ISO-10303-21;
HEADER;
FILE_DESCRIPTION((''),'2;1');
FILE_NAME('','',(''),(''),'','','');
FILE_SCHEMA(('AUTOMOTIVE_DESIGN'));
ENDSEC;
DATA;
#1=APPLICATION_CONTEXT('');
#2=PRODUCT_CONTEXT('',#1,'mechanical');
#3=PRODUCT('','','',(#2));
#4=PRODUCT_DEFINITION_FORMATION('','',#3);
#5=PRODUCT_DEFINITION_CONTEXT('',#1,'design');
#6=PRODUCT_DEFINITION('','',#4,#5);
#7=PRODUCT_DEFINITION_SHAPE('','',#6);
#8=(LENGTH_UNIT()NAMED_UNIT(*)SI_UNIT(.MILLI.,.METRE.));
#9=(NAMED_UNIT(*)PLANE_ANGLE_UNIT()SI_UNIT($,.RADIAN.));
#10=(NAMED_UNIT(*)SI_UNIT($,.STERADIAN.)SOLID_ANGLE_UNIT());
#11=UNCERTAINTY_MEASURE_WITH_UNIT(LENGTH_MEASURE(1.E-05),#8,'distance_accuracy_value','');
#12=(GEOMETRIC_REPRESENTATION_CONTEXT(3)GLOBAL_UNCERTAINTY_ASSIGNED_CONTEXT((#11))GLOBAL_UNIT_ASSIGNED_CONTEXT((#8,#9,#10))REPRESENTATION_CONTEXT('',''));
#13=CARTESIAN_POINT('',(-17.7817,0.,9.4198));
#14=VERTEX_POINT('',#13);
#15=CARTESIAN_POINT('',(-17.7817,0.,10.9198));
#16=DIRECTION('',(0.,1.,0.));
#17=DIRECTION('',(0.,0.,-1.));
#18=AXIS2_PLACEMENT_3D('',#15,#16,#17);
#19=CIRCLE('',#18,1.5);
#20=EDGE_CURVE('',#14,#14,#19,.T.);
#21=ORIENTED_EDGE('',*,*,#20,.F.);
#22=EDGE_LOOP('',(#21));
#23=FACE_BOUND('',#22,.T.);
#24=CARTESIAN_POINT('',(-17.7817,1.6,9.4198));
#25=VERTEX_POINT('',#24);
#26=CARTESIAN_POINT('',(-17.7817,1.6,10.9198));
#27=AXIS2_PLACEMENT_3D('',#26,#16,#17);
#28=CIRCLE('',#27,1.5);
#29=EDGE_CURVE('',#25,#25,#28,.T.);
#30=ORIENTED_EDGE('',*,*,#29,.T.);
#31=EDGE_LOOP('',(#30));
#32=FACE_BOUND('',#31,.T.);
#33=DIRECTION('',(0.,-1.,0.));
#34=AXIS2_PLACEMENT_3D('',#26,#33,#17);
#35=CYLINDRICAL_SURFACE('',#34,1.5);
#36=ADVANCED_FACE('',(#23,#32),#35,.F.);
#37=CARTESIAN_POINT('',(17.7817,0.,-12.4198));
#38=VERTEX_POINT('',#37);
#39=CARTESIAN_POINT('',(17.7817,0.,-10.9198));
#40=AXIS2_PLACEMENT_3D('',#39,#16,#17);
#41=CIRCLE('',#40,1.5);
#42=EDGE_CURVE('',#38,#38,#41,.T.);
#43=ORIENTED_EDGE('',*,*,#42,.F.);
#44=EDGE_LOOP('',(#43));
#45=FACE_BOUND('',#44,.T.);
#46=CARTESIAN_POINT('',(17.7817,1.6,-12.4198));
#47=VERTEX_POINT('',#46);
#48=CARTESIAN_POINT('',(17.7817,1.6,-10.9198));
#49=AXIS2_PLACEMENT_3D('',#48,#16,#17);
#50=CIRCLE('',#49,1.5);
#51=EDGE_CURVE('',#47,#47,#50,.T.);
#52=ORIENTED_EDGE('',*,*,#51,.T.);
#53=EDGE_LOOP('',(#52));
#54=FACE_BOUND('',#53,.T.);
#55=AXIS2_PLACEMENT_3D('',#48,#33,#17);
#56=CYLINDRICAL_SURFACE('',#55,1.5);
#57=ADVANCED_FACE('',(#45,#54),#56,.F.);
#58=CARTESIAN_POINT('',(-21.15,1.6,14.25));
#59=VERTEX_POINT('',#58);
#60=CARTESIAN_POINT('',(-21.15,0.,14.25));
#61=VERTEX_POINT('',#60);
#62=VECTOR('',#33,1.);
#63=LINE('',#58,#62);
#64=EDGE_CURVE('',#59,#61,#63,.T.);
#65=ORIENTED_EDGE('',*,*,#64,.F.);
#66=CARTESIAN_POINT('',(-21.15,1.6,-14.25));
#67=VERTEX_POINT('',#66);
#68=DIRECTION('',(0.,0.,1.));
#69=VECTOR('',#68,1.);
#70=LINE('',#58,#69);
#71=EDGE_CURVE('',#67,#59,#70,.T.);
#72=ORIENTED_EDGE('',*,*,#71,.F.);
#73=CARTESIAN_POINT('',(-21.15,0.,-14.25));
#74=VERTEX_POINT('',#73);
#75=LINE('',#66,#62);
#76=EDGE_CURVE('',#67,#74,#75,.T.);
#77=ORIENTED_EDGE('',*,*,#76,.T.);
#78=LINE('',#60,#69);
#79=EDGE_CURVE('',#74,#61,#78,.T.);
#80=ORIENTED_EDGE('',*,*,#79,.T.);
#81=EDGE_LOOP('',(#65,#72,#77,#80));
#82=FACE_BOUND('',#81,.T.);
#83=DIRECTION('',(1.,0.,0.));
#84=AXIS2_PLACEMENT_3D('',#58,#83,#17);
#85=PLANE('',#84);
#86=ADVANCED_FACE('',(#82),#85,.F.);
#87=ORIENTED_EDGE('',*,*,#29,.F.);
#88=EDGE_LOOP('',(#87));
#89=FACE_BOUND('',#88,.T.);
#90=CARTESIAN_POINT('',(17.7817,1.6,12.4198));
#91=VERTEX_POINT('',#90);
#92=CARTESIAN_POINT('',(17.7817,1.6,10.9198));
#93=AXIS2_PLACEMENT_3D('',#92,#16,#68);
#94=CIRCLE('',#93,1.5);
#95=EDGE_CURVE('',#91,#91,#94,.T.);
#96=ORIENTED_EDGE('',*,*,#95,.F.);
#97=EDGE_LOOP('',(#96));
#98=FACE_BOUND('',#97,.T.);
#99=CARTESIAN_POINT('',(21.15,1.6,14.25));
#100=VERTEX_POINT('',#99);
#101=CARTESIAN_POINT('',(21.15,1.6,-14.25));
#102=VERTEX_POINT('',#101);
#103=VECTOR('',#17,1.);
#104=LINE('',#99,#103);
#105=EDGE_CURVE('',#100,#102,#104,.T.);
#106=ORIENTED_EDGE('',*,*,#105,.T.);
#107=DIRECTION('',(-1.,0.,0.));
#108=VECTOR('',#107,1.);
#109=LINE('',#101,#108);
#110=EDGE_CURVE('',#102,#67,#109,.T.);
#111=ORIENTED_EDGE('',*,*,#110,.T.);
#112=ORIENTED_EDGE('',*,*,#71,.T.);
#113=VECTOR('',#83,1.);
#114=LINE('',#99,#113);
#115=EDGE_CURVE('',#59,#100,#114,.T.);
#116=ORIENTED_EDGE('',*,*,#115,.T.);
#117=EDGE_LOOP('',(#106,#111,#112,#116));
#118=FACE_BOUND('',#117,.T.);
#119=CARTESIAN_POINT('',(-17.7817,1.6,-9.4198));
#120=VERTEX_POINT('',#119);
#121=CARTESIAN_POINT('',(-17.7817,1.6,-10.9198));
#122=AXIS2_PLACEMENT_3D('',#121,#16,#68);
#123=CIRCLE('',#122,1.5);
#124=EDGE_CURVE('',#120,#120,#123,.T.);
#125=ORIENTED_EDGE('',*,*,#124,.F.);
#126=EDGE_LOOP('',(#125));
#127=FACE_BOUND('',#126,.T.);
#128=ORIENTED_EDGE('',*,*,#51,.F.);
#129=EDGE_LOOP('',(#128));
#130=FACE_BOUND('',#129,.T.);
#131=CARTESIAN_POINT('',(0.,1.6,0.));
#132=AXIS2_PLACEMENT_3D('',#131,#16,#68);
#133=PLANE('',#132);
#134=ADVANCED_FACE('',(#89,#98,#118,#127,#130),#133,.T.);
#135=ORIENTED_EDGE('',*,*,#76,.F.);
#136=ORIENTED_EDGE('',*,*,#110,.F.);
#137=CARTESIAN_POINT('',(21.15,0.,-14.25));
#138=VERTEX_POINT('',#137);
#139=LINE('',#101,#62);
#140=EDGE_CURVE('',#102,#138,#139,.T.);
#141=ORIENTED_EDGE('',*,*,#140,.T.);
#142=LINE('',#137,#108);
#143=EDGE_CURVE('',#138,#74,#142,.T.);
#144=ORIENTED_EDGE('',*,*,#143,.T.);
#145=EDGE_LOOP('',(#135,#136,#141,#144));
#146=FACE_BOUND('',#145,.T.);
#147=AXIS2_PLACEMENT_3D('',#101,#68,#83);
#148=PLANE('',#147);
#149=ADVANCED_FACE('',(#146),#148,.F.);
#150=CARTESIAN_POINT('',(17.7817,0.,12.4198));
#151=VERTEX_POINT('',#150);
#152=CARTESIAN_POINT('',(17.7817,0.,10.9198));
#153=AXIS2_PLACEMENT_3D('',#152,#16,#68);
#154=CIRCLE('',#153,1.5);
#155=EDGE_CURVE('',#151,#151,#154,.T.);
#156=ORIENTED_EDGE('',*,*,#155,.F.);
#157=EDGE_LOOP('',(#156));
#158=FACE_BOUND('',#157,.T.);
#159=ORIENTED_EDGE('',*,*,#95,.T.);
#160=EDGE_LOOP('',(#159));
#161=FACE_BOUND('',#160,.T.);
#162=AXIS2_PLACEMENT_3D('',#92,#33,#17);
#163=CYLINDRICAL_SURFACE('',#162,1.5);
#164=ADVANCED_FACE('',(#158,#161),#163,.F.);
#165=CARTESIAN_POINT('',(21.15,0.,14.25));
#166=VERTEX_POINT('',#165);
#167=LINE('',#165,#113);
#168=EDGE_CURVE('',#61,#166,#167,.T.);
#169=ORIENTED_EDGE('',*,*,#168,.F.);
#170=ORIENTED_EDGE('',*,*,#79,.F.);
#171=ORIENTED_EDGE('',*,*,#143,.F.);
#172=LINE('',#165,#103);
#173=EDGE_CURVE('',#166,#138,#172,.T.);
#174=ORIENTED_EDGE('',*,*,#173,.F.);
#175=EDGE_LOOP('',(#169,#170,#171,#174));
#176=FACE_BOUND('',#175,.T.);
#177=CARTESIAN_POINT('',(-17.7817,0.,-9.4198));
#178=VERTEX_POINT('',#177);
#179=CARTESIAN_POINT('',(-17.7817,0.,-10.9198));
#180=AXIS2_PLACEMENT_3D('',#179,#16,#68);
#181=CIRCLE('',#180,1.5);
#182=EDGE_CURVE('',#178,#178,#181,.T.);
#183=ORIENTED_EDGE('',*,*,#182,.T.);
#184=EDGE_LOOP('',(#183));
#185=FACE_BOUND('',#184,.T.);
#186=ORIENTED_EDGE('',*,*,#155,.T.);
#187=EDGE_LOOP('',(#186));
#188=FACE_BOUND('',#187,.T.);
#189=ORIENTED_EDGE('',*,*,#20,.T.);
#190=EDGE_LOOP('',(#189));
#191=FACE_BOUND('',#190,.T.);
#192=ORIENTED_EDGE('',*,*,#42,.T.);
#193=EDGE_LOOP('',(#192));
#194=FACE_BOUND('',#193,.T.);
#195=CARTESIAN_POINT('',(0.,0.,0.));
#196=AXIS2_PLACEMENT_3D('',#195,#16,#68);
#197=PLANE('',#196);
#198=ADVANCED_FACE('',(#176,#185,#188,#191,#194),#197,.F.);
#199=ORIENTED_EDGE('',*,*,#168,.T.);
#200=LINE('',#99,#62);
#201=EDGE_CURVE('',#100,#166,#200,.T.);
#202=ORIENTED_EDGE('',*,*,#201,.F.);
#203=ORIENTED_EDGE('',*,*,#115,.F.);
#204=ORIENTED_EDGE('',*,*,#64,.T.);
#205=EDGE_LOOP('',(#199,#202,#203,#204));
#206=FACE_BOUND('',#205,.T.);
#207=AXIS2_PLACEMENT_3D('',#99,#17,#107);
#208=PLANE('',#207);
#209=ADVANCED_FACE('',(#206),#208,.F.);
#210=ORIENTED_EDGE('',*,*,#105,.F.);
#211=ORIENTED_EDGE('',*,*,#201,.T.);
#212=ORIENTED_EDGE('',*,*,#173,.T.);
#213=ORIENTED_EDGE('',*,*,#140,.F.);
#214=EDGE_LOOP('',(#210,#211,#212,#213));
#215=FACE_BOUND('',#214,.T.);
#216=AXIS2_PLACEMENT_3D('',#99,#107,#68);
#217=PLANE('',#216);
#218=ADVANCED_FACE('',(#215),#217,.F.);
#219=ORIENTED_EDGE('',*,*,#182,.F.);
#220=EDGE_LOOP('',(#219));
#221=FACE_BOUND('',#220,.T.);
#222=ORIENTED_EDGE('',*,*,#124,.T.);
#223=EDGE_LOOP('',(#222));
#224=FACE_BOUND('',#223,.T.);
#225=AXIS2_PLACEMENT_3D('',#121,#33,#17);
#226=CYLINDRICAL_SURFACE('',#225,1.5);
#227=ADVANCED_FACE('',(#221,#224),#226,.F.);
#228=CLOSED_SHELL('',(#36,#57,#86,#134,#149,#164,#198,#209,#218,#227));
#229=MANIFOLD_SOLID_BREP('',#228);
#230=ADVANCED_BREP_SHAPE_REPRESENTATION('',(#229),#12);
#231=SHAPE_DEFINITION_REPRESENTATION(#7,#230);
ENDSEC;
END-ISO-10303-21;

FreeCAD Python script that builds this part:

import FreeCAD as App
import Part
import Sketcher


def add_polygon(sketch, points):
    """Adds a closed chain of lines whose ends are joined by coincident constraints."""
    first, n = sketch.GeometryCount, len(points)
    for a, b in zip(points, points[1:] + points[:1]):
        sketch.addGeometry(Part.LineSegment(App.Vector(*a, 0), App.Vector(*b, 0)), False)
    for i in range(n):
        sketch.addConstraint(Sketcher.Constraint("Coincident", first + i, 2, first + (i + 1) % n, 1))

doc = App.newDocument("Part")
body = doc.addObject("PartDesign::Body", "Body")

# Sketch on XZ plane
sketch1 = doc.addObject("Sketcher::SketchObject", "Sketch")
body.addObject(sketch1)
sketch1.AttachmentSupport = (doc.XZ_Plane, [""])
sketch1.MapMode = "FlatFace"
add_polygon(sketch1, [(-21.15, -14.25), (-21.15, 14.25), (21.15, 14.25), (21.15, -14.25)])  # lines 0-3
sketch1.addGeometry(Part.Circle(App.Vector(-17.7817, 10.9198, 0), App.Vector(0, 0, 1), 1.5), False)  # 4
sketch1.addGeometry(Part.Circle(App.Vector(17.7817, 10.9198, 0), App.Vector(0, 0, 1), 1.5), False)  # 5
sketch1.addGeometry(Part.Circle(App.Vector(-17.7817, -10.9198, 0), App.Vector(0, 0, 1), 1.5), False)  # 6
sketch1.addGeometry(Part.Circle(App.Vector(17.7817, -10.9198, 0), App.Vector(0, 0, 1), 1.5), False)  # 7
sketch1.addConstraint([
    Sketcher.Constraint("Vertical", 0),
    Sketcher.Constraint("Horizontal", 1),
    Sketcher.Constraint("Vertical", 2),
    Sketcher.Constraint("Horizontal", 3),
    Sketcher.Constraint("Equal", 4, 5),
    Sketcher.Constraint("Equal", 5, 6),
    Sketcher.Constraint("Equal", 6, 7),
    Sketcher.Constraint("Symmetric", 5, 3, 6, 3, -1, 1),
    Sketcher.Constraint("Symmetric", 4, 3, 7, 3, -1, 1),
    Sketcher.Constraint("Symmetric", 0, 2, 2, 2, -1, 1),
    Sketcher.Constraint("Symmetric", 4, 3, 5, 3, -2),
    Sketcher.Constraint("Diameter", 4, 3.0),
    Sketcher.Constraint("DistanceX", 1, 1, 1, 2, 42.3),
    Sketcher.Constraint("DistanceY", 0, 1, 0, 2, 28.5),
    Sketcher.Constraint("DistanceX", 4, 3, -1, 1, 17.7817),
    Sketcher.Constraint("DistanceY", -1, 1, 4, 3, 10.9198),
])
pad1 = doc.addObject("PartDesign::Pad", "Pad")
body.addObject(pad1)
pad1.Profile = sketch1
pad1.Length = 1.6
pad1.Reversed = True

doc.recompute()
